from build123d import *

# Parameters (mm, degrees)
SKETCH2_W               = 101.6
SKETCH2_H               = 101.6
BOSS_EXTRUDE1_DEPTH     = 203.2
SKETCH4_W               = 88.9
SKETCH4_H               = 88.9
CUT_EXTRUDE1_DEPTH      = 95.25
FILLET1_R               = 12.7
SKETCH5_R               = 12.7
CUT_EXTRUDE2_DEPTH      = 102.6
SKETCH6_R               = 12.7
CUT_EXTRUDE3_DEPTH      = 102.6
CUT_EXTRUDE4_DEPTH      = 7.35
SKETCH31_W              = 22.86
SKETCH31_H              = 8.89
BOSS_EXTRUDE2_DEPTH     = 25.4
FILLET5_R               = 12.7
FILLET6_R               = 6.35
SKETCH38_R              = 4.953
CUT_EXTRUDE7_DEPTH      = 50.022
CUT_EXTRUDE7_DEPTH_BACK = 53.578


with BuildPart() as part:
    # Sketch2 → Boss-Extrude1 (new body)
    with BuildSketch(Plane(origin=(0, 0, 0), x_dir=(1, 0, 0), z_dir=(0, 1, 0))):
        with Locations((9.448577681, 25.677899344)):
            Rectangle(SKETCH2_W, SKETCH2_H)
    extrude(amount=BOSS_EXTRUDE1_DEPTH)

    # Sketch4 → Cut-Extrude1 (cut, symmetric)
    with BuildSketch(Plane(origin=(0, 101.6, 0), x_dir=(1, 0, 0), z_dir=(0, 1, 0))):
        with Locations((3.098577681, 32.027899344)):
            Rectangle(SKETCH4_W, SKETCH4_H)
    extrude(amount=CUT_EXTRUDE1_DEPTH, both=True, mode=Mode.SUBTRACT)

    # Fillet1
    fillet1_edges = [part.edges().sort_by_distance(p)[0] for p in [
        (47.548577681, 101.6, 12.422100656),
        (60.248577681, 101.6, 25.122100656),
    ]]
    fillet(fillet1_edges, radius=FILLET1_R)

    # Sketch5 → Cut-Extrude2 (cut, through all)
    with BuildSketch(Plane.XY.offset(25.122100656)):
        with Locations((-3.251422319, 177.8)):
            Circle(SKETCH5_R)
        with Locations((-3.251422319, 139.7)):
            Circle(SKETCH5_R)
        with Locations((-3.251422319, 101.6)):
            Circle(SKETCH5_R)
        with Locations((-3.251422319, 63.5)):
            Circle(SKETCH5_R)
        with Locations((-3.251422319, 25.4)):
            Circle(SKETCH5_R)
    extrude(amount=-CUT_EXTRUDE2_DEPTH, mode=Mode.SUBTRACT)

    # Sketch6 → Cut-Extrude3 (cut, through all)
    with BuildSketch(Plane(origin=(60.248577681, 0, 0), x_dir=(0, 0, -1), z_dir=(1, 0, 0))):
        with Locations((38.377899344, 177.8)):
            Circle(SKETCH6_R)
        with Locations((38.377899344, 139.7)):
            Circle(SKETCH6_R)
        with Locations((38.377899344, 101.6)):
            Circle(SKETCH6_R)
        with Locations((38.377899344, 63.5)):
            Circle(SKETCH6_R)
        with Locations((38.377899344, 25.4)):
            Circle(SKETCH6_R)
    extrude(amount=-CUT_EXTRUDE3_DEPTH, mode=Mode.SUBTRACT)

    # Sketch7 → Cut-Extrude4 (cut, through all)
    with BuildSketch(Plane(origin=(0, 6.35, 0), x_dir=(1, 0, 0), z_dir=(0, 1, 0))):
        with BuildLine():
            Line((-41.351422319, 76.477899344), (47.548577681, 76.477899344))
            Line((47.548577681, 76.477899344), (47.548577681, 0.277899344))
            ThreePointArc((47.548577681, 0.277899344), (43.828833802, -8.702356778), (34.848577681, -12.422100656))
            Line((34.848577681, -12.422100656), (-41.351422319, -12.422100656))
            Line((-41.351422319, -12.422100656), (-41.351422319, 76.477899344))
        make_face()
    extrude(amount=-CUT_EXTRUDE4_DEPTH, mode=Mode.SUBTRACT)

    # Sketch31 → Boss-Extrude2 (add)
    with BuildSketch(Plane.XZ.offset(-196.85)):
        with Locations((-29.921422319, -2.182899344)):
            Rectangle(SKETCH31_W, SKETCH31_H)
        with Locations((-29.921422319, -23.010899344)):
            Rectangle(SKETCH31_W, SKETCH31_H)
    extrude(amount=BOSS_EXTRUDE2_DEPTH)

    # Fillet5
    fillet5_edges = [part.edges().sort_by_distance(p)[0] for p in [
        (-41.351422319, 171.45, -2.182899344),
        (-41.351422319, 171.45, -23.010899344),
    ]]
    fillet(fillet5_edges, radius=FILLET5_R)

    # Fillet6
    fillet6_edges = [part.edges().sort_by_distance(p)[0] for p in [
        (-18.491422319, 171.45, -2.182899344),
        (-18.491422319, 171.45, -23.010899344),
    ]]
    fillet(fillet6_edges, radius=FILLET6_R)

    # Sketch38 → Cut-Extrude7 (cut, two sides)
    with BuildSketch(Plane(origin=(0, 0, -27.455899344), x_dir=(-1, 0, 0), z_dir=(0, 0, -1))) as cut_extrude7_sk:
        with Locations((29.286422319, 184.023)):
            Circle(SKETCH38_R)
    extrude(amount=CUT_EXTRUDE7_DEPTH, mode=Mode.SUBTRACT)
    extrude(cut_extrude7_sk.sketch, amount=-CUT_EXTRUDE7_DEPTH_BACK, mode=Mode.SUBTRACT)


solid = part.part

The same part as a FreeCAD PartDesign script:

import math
import FreeCAD as App
import Part
import Sketcher

V = App.Vector
Q = App.Units.Quantity


def edges_at(feature, points):
    """Names of the edges that pass closest to the given points."""
    edges = feature.Shape.Edges
    near = lambda p: min(range(len(edges)), key=lambda i: edges[i].distToShape(Part.Vertex(*p))[0])
    return sorted({f"Edge{near(p) + 1}" for p in points})


def add_polygon(sketch, points):
    """Adds a closed chain of lines whose ends are joined by coincident constraints."""
    first, n = sketch.GeometryCount, len(points)
    for a, b in zip(points, points[1:] + points[:1]):
        sketch.addGeometry(Part.LineSegment(App.Vector(*a, 0), App.Vector(*b, 0)), False)
    for i in range(n):
        sketch.addConstraint(Sketcher.Constraint("Coincident", first + i, 2, first + (i + 1) % n, 1))

doc = App.newDocument("Part")
body = doc.addObject("PartDesign::Body", "Body")

# Sketch on XZ plane
sketch1 = doc.addObject("Sketcher::SketchObject", "Sketch")
body.addObject(sketch1)
sketch1.AttachmentSupport = (doc.XZ_Plane, [""])
sketch1.MapMode = "FlatFace"
add_polygon(sketch1, [(-41, -76), (-41, 25), (60, 25), (60, -76)])  # lines 0-3
sketch1.addConstraint([
    Sketcher.Constraint("Vertical", 0),
    Sketcher.Constraint("Horizontal", 1),
    Sketcher.Constraint("Vertical", 2),
    Sketcher.Constraint("Horizontal", 3),
    Sketcher.Constraint("Equal", 3, 0),
    Sketcher.Constraint("DistanceX", 1, 1, 1, 2, Q("4 in")),
    Sketcher.Constraint("DistanceY", -1, 1, 0, 2, Q("25.122101 mm")),
    Sketcher.Constraint("DistanceX", 0, 2, -1, 1, Q("41.351422 mm")),
])
pad1 = doc.addObject("PartDesign::Pad", "Pad")
body.addObject(pad1)
pad1.Profile = sketch1
pad1.Length = Q("8 in")
pad1.Reversed = True

# Sketch on XZ plane
sketch2 = doc.addObject("Sketcher::SketchObject", "Sketch001")
body.addObject(sketch2)
sketch2.AttachmentSupport = (doc.XZ_Plane, [""])
sketch2.MapMode = "FlatFace"
sketch2.AttachmentOffset = App.Placement(V(0, 0, -4 * 25.4), App.Rotation())
add_polygon(sketch2, [(-41, -76), (-41, 12), (48, 12), (48, -76)])  # lines 0-3
sketch2.addConstraint([
    Sketcher.Constraint("Vertical", 0),
    Sketcher.Constraint("Horizontal", 1),
    Sketcher.Constraint("Vertical", 2),
    Sketcher.Constraint("Horizontal", 3),
    Sketcher.Constraint("Equal", 3, 0),
    Sketcher.Constraint("DistanceX", 1, 1, 1, 2, Q("3.5 in")),
    Sketcher.Constraint("DistanceY", -1, 1, 0, 2, Q("12.422101 mm")),
    Sketcher.Constraint("DistanceX", 0, 2, -1, 1, Q("41.351422 mm")),
])
pocket1 = doc.addObject("PartDesign::Pocket", "Pocket")
body.addObject(pocket1)
pocket1.Profile = sketch2
pocket1.Length = Q("7.5 in")
pocket1.Midplane = True
doc.recompute()

fillet = doc.addObject("PartDesign::Fillet", "Fillet")
body.addObject(fillet)
fillet.Base = (pocket1, edges_at(pocket1, [(47.549, 101.6, 12.422), (60.249, 101.6, 25.122)]))
fillet.Radius = Q("0.5 in")

# Sketch on XY plane
sketch3 = doc.addObject("Sketcher::SketchObject", "Sketch002")
body.addObject(sketch3)
sketch3.AttachmentSupport = (doc.XY_Plane, [""])
sketch3.MapMode = "FlatFace"
sketch3.AttachmentOffset = App.Placement(V(0, 0, 25.122101), App.Rotation())
sketch3.addGeometry([
    Part.Circle(V(-3, 178, 0), V(0, 0, 1), 13),  # 0
    Part.Circle(V(-3, 140, 0), V(0, 0, 1), 13),  # 1
    Part.Circle(V(-3, 102, 0), V(0, 0, 1), 13),  # 2
    Part.Circle(V(-3, 64, 0), V(0, 0, 1), 13),  # 3
    Part.Circle(V(-3, 25, 0), V(0, 0, 1), 13),  # 4
], False)
sketch3.addConstraint([
    Sketcher.Constraint("Equal", 0, 1),
    Sketcher.Constraint("Equal", 1, 2),
    Sketcher.Constraint("Equal", 2, 3),
    Sketcher.Constraint("Equal", 3, 4),
    Sketcher.Constraint("Vertical", 0, 3, 1, 3),
    Sketcher.Constraint("Vertical", 1, 3, 2, 3),
    Sketcher.Constraint("Vertical", 2, 3, 3, 3),
    Sketcher.Constraint("Vertical", 3, 3, 4, 3),
    Sketcher.Constraint("Diameter", 0, Q("1 in")),
    Sketcher.Constraint("DistanceY", -1, 1, 0, 3, Q("7 in")),
    Sketcher.Constraint("DistanceY", -1, 1, 2, 3, Q("4 in")),
    Sketcher.Constraint("DistanceY", -1, 1, 4, 3, Q("1 in")),
    Sketcher.Constraint("DistanceY", 3, 3, 1, 3, Q("3 in")),
    Sketcher.Constraint("DistanceY", -1, 1, 1, 3, Q("5.5 in")),
    Sketcher.Constraint("DistanceX", 0, 3, -1, 1, Q("3.251422 mm")),
])
pocket2 = doc.addObject("PartDesign::Pocket", "Pocket001")
body.addObject(pocket2)
pocket2.Profile = sketch3
pocket2.Type = "ThroughAll"

# Sketch on YZ plane
sketch4 = doc.addObject("Sketcher::SketchObject", "Sketch003")
body.addObject(sketch4)
sketch4.AttachmentSupport = (doc.YZ_Plane, [""])
sketch4.MapMode = "FlatFace"
sketch4.AttachmentOffset = App.Placement(V(0, 0, 60.248578), App.Rotation())
sketch4.addGeometry([
    Part.Circle(V(178, -38, 0), V(0, 0, 1), 13),  # 0
    Part.Circle(V(140, -38, 0), V(0, 0, 1), 13),  # 1
    Part.Circle(V(102, -38, 0), V(0, 0, 1), 13),  # 2
    Part.Circle(V(64, -38, 0), V(0, 0, 1), 13),  # 3
    Part.Circle(V(25, -38, 0), V(0, 0, 1), 13),  # 4
], False)
sketch4.addConstraint([
    Sketcher.Constraint("Equal", 0, 1),
    Sketcher.Constraint("Equal", 1, 2),
    Sketcher.Constraint("Equal", 2, 3),
    Sketcher.Constraint("Equal", 3, 4),
    Sketcher.Constraint("Horizontal", 0, 3, 1, 3),
    Sketcher.Constraint("Horizontal", 1, 3, 2, 3),
    Sketcher.Constraint("Horizontal", 2, 3, 3, 3),
    Sketcher.Constraint("Horizontal", 3, 3, 4, 3),
    Sketcher.Constraint("Diameter", 0, Q("1 in")),
    Sketcher.Constraint("DistanceX", -1, 1, 0, 3, Q("7 in")),
    Sketcher.Constraint("DistanceX", -1, 1, 2, 3, Q("4 in")),
    Sketcher.Constraint("DistanceX", -1, 1, 4, 3, Q("1 in")),
    Sketcher.Constraint("DistanceX", 3, 3, 1, 3, Q("3 in")),
    Sketcher.Constraint("DistanceX", -1, 1, 1, 3, Q("5.5 in")),
    Sketcher.Constraint("DistanceY", 0, 3, -1, 1, Q("38.377899 mm")),
])
pocket3 = doc.addObject("PartDesign::Pocket", "Pocket002")
body.addObject(pocket3)
pocket3.Profile = sketch4
pocket3.Type = "ThroughAll"

# Sketch on XZ plane
sketch5 = doc.addObject("Sketcher::SketchObject", "Sketch004")
body.addObject(sketch5)
sketch5.AttachmentSupport = (doc.XZ_Plane, [""])
sketch5.MapMode = "FlatFace"
sketch5.AttachmentOffset = App.Placement(V(0, 0, -0.25 * 25.4), App.Rotation())
sketch5.addGeometry([
    Part.LineSegment(V(48, -76, 0), V(-41, -76, 0)),  # 0
    Part.LineSegment(V(-41, -76, 0), V(-41, 12, 0)),  # 1
    Part.LineSegment(V(-41, 12, 0), V(35, 12, 0)),  # 2
    Part.ArcOfCircle(Part.Circle(V(35, 0, 0), V(0, 0, 1), 13), math.radians(0), math.radians(90)),  # 3
    Part.LineSegment(V(48, 0, 0), V(48, -76, 0)),  # 4
], False)
sketch5.addConstraint([
    Sketcher.Constraint("Coincident", 0, 2, 1, 1),
    Sketcher.Constraint("Coincident", 1, 2, 2, 1),
    Sketcher.Constraint("Tangent", 2, 2, 3, 2),
    Sketcher.Constraint("Tangent", 3, 1, 4, 1),
    Sketcher.Constraint("Coincident", 4, 2, 0, 1),
    Sketcher.Constraint("Horizontal", 0),
    Sketcher.Constraint("Vertical", 1),
    Sketcher.Constraint("Horizontal", 2),
    Sketcher.Constraint("Vertical", 4),
    Sketcher.Constraint("Equal", 0, 1),
    Sketcher.Constraint("Radius", 3, Q("0.5 in")),
    Sketcher.Constraint("DistanceX", 2, 1, 2, 2, Q("3 in")),
    Sketcher.Constraint("DistanceY", 3, 3, -1, 1, Q("0.277899 mm")),
    Sketcher.Constraint("DistanceX", -1, 1, 3, 3, Q("34.848578 mm")),
])
pocket4 = doc.addObject("PartDesign::Pocket", "Pocket003")
body.addObject(pocket4)
pocket4.Profile = sketch5
pocket4.Type = "ThroughAll"
pocket4.Reversed = True

# Sketch on XZ plane
sketch6 = doc.addObject("Sketcher::SketchObject", "Sketch005")
body.addObject(sketch6)
sketch6.AttachmentSupport = (doc.XZ_Plane, [""])
sketch6.MapMode = "FlatFace"
sketch6.AttachmentOffset = App.Placement(V(0, 0, -7.75 * 25.4), App.Rotation())
add_polygon(sketch6, [(-41, 2), (-41, -7), (-18, -7), (-18, 2)])  # lines 0-3
add_polygon(sketch6, [(-41, -19), (-41, -27), (-18, -27), (-18, -19)])  # lines 4-7
sketch6.addConstraint([
    Sketcher.Constraint("Vertical", 0),
    Sketcher.Constraint("Horizontal", 1),
    Sketcher.Constraint("Vertical", 2),
    Sketcher.Constraint("Horizontal", 3),
    Sketcher.Constraint("Vertical", 4),
    Sketcher.Constraint("Horizontal", 5),
    Sketcher.Constraint("Vertical", 6),
    Sketcher.Constraint("Horizontal", 7),
    Sketcher.Constraint("Vertical", 3, 2, 4, 2),
    Sketcher.Constraint("Vertical", 2, 2, 5, 2),
    Sketcher.Constraint("Equal", 2, 4),
    Sketcher.Constraint("DistanceX", 1, 1, 1, 2, Q("0.9 in")),
    Sketcher.Constraint("DistanceY", 0, 2, 0, 1, Q("0.35 in")),
    Sketcher.Constraint("DistanceY", 4, 2, 0, 2, Q("0.82 in")),
    Sketcher.Constraint("DistanceY", 0, 2, -1, 1, Q("6.627899 mm")),
    Sketcher.Constraint("DistanceX", 0, 2, -1, 1, Q("41.351422 mm")),
])
pad2 = doc.addObject("PartDesign::Pad", "Pad001")
body.addObject(pad2)
pad2.Profile = sketch6
pad2.Length = Q("1 in")
doc.recompute()

fillet2 = doc.addObject("PartDesign::Fillet", "Fillet001")
body.addObject(fillet2)
fillet2.Base = (pad2, edges_at(pad2, [(-41.351, 171.45, -2.183), (-41.351, 171.45, -23.011)]))
fillet2.Radius = Q("0.5 in")
doc.recompute()

fillet3 = doc.addObject("PartDesign::Fillet", "Fillet002")
body.addObject(fillet3)
fillet3.Base = (fillet2, edges_at(fillet2, [(-18.491, 171.45, -2.183), (-18.491, 171.45, -23.011)]))
fillet3.Radius = Q("0.25 in")

# Sketch on XY plane
sketch7 = doc.addObject("Sketcher::SketchObject", "Sketch006")
body.addObject(sketch7)
sketch7.AttachmentSupport = (doc.XY_Plane, [""])
sketch7.MapMode = "FlatFace"
sketch7.AttachmentOffset = App.Placement(V(0, 0, -27.455899), App.Rotation())
sketch7.addGeometry(Part.Circle(V(-29.3, 184, 0), V(0, 0, 1), 5), False)
sketch7.addConstraint([
    Sketcher.Constraint("Diameter", 0, Q("0.39 in")),
    Sketcher.Constraint("DistanceY", -1, 1, 0, 3, Q("7.245 in")),
    Sketcher.Constraint("DistanceX", 0, 3, -1, 1, Q("29.286422 mm")),
])
pocket5 = doc.addObject("PartDesign::Pocket", "Pocket004")
body.addObject(pocket5)
pocket5.Profile = sketch7
pocket5.Type = "ThroughAll"
pocket5.Midplane = True

doc.recompute()
